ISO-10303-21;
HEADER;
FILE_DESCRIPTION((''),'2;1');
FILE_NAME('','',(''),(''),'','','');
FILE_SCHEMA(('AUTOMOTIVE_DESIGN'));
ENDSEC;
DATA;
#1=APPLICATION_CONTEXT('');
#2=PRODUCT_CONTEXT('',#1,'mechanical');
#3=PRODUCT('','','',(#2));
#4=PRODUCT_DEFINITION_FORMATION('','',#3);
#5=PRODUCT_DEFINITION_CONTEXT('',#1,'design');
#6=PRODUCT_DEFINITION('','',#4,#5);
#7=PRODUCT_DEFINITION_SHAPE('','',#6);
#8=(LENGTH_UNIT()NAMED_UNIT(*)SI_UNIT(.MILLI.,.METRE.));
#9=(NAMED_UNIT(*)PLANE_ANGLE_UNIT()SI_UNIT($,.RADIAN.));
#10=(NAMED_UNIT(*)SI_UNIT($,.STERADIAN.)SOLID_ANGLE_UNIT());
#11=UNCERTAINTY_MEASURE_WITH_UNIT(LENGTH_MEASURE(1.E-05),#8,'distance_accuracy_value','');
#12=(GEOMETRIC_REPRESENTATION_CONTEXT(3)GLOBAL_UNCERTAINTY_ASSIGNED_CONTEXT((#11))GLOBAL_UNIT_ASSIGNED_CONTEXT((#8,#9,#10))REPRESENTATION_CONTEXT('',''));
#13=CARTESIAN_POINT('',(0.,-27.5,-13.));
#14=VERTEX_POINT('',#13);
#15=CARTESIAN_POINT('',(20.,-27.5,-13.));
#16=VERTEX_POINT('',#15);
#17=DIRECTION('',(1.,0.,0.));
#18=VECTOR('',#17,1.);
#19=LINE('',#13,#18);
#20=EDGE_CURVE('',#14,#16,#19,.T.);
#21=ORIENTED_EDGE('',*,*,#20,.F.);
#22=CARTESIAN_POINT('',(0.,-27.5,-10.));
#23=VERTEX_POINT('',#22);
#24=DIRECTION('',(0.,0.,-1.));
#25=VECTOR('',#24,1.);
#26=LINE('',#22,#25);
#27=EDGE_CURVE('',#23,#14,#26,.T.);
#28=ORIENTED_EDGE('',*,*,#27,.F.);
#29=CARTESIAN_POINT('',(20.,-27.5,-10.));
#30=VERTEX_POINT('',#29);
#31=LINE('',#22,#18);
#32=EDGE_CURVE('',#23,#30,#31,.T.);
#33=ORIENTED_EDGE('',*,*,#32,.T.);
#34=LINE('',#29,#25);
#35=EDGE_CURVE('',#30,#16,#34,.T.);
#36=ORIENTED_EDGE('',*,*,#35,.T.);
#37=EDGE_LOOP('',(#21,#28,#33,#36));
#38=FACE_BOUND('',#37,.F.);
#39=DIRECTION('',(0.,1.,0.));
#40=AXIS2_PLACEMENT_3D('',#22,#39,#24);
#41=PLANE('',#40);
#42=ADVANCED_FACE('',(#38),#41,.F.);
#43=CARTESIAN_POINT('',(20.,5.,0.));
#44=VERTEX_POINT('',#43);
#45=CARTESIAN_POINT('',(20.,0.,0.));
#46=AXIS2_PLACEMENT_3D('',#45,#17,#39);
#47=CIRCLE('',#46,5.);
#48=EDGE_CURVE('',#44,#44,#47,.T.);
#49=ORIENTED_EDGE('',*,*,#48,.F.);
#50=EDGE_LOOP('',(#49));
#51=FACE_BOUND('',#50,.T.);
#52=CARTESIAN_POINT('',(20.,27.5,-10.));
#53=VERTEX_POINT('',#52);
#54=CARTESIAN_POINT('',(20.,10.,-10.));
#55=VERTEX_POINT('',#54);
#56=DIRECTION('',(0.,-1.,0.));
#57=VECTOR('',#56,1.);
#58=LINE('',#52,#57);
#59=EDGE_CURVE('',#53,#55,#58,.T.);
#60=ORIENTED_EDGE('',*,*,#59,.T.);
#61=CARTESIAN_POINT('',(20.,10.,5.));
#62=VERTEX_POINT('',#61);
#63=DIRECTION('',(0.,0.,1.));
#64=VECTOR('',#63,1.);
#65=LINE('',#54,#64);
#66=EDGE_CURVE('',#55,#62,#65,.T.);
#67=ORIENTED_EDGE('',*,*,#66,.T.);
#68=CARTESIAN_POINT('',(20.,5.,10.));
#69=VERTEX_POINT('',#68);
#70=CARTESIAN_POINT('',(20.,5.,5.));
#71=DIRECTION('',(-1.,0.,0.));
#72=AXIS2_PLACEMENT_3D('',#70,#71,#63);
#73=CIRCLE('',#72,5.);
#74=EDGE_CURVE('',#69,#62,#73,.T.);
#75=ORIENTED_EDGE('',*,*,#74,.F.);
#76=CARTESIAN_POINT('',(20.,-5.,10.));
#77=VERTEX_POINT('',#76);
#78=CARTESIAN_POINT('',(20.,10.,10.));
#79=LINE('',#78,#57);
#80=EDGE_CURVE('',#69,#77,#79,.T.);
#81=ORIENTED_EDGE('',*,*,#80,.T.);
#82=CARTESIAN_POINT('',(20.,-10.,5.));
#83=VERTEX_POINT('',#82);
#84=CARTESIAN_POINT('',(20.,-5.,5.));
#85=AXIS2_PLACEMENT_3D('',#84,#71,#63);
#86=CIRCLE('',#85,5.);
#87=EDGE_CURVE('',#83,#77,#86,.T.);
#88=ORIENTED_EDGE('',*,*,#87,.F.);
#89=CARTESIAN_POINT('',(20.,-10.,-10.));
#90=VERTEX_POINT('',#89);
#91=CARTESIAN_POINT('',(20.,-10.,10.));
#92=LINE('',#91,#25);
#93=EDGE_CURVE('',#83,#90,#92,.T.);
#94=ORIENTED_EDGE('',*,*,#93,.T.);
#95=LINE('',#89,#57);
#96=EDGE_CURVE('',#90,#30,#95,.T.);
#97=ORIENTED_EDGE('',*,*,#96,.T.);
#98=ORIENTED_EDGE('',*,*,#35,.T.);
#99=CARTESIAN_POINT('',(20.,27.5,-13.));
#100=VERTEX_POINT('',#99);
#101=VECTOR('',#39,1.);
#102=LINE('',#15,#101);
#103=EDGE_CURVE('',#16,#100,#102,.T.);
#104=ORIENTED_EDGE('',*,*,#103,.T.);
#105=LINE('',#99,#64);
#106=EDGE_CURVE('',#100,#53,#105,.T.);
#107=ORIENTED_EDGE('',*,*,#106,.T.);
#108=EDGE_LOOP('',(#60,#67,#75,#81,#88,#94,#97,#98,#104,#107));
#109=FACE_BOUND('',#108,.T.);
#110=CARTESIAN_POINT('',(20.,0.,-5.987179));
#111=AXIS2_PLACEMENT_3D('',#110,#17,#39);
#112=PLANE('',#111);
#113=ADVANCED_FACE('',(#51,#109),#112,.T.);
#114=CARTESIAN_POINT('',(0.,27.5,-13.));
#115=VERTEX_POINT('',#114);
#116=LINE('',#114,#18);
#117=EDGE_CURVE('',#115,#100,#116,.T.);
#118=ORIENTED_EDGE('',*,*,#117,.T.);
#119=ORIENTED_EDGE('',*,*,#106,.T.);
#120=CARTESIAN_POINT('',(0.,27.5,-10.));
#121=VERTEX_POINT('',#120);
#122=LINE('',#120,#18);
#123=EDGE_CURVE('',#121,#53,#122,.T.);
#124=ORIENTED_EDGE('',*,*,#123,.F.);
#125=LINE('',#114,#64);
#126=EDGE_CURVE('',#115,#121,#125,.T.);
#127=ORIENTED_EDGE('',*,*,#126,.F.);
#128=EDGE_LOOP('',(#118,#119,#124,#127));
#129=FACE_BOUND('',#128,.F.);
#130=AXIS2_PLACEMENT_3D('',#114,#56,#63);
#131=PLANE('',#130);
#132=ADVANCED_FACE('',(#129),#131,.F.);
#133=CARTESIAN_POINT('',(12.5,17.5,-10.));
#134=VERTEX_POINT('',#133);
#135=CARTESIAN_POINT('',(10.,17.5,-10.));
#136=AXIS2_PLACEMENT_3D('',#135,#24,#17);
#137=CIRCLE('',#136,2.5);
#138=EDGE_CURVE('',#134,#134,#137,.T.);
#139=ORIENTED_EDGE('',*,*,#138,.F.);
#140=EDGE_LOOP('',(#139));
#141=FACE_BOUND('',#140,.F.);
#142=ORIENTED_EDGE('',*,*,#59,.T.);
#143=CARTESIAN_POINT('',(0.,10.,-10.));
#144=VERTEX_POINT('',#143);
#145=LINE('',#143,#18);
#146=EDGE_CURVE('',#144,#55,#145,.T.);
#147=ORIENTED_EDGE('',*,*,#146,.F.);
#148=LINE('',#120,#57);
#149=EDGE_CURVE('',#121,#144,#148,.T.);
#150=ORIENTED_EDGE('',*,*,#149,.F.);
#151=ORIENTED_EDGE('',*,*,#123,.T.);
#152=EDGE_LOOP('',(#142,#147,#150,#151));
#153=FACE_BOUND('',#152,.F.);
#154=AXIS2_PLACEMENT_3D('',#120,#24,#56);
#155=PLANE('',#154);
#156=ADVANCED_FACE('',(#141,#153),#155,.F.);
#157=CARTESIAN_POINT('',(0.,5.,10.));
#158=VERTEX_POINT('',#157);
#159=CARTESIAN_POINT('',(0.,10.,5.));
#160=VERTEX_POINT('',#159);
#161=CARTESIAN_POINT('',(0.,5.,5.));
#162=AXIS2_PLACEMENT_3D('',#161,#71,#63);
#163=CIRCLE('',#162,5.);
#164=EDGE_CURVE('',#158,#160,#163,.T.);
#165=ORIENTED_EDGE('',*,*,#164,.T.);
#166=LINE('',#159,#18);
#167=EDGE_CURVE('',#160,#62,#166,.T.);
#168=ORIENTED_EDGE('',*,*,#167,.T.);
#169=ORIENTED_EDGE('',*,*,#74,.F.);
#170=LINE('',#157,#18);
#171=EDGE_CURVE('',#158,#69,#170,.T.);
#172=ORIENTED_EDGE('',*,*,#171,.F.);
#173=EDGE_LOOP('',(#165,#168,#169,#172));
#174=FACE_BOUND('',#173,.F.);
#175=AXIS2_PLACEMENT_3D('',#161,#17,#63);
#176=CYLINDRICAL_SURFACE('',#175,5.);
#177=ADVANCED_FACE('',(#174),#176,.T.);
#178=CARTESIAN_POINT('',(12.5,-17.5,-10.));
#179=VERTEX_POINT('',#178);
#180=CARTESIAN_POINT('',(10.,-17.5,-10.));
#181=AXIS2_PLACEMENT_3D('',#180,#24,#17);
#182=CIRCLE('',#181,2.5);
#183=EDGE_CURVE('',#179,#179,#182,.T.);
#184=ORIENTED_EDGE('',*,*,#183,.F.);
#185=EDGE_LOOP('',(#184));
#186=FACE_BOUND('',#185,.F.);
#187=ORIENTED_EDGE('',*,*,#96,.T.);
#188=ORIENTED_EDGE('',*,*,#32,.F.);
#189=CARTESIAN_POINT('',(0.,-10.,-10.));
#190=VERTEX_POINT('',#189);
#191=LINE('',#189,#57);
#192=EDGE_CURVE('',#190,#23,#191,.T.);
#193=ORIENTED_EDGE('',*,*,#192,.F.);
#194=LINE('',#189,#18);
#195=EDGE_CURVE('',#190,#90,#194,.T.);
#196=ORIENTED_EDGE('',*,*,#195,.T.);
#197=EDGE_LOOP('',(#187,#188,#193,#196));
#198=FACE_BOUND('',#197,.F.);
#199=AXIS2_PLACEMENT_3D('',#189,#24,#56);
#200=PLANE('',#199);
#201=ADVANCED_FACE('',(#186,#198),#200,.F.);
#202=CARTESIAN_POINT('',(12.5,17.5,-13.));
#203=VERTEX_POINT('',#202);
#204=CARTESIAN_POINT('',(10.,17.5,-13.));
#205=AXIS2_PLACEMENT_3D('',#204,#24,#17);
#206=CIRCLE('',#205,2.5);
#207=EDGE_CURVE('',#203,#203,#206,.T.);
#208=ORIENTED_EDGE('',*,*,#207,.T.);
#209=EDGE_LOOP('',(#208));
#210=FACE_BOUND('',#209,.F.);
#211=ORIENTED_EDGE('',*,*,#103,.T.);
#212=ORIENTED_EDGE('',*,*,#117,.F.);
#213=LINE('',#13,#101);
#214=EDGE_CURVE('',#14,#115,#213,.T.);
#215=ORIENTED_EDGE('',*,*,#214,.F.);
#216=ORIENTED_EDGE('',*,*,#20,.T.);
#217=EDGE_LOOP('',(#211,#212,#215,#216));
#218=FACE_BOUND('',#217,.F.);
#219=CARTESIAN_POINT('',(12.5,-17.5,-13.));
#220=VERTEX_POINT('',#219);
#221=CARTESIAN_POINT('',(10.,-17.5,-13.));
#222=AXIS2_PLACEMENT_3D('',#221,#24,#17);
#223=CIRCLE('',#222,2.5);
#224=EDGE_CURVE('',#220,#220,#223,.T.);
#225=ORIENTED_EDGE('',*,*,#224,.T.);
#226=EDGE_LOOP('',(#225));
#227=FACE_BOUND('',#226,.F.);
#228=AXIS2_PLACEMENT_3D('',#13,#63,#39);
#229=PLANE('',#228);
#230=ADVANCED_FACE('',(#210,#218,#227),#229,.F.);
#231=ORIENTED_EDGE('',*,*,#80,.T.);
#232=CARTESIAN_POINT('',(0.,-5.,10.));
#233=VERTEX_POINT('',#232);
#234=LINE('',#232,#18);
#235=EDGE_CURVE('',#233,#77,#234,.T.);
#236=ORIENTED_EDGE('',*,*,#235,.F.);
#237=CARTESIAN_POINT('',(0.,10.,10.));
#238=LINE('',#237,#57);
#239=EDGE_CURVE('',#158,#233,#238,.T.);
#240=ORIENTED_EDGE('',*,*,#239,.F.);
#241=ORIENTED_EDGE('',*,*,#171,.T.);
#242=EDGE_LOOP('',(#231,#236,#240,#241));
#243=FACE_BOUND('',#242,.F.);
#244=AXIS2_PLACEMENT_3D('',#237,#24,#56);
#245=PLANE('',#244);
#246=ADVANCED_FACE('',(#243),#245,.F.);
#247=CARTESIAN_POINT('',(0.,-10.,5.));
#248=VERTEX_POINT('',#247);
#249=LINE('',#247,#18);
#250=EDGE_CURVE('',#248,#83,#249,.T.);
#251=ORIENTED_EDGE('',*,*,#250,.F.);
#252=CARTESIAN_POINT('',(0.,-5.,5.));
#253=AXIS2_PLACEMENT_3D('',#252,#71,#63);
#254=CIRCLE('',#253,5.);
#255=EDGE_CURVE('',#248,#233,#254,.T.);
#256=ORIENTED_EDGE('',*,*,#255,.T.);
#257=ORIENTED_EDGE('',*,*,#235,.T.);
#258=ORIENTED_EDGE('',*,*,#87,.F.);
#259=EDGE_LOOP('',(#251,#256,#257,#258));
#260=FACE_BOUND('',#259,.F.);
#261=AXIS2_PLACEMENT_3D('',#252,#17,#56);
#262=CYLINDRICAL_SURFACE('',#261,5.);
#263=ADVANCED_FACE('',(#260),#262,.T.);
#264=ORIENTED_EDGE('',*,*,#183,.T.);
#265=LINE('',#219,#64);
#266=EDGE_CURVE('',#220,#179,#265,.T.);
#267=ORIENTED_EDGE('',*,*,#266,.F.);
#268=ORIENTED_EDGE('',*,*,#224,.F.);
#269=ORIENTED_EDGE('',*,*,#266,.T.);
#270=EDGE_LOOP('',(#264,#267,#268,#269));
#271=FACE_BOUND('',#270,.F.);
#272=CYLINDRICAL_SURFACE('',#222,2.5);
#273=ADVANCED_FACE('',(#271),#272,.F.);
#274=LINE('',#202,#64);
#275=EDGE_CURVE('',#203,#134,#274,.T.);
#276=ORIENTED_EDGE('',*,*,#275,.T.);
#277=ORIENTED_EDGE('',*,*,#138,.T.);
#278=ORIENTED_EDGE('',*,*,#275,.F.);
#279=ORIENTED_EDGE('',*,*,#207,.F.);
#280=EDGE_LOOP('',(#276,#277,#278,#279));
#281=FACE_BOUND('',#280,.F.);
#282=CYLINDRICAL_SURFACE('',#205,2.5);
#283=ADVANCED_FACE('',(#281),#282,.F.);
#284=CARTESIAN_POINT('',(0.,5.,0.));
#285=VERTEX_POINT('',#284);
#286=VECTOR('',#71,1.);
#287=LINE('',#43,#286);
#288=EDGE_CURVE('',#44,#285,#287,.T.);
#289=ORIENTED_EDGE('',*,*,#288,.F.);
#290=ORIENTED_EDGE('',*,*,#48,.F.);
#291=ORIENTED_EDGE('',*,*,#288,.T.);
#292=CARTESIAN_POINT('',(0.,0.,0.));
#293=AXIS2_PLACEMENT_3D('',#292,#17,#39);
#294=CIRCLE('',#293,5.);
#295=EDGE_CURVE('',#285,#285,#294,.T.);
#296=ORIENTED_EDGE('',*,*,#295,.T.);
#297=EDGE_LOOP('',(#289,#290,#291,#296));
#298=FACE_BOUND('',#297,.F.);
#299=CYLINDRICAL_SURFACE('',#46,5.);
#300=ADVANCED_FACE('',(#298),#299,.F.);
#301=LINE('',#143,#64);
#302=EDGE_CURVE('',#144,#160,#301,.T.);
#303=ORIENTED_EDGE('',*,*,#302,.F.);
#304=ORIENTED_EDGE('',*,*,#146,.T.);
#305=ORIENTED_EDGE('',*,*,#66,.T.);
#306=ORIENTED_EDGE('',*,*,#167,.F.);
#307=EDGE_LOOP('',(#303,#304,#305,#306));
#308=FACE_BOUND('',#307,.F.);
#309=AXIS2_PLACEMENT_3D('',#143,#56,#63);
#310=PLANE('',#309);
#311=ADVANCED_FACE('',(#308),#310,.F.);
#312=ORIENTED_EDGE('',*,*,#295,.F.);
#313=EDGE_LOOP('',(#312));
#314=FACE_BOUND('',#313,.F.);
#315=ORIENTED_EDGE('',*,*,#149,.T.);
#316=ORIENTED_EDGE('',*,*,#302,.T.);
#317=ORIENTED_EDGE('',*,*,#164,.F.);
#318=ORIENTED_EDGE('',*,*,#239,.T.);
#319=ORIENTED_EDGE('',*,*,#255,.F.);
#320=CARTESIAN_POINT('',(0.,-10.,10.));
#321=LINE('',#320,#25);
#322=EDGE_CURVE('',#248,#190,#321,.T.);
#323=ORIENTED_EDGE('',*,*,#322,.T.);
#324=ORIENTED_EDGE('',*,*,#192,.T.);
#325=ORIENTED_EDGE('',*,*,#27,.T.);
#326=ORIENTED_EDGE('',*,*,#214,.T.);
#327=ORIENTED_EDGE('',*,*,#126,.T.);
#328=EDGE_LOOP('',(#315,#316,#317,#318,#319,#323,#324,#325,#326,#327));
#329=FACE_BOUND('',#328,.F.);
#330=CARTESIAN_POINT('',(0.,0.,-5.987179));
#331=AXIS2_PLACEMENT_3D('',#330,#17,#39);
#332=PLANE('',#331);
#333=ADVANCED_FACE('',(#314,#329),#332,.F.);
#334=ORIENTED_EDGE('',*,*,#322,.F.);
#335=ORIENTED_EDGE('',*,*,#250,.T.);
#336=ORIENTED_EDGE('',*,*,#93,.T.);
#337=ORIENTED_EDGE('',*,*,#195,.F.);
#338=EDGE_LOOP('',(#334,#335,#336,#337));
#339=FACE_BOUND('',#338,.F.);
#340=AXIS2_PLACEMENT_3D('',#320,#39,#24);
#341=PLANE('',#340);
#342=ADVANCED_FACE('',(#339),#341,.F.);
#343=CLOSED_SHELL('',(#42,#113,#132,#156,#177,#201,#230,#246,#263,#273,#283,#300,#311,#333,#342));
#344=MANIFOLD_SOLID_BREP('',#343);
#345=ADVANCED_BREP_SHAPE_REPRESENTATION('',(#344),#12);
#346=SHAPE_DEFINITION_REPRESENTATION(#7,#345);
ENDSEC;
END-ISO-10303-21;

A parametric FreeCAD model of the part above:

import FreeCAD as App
import Part
import Sketcher
Q = App.Units.Quantity


def edges_at(feature, points):
    """Names of the edges that pass closest to the given points."""
    edges = feature.Shape.Edges
    near = lambda p: min(range(len(edges)), key=lambda i: edges[i].distToShape(Part.Vertex(*p))[0])
    return sorted({f"Edge{near(p) + 1}" for p in points})


def add_polygon(sketch, points):
    """Adds a closed chain of lines whose ends are joined by coincident constraints."""
    first, n = sketch.GeometryCount, len(points)
    for a, b in zip(points, points[1:] + points[:1]):
        sketch.addGeometry(Part.LineSegment(App.Vector(*a, 0), App.Vector(*b, 0)), False)
    for i in range(n):
        sketch.addConstraint(Sketcher.Constraint("Coincident", first + i, 2, first + (i + 1) % n, 1))

doc = App.newDocument("Part")
body = doc.addObject("PartDesign::Body", "Body")

# Sketch on YZ plane
sketch1 = body.newObject("Sketcher::SketchObject", "Sketch")
sketch1.AttachmentSupport = (doc.getObject("YZ_Plane"), [""])
sketch1.MapMode = "FlatFace"
add_polygon(sketch1, [(-27.5, -10), (-27.5, -13), (27.5, -13), (27.5, -10), (10, -10), (10, 10), (-10, 10), (-10, -10)])  # lines 0-7
sketch1.addConstraint([
    Sketcher.Constraint("Vertical", 0),
    Sketcher.Constraint("Horizontal", 1),
    Sketcher.Constraint("Vertical", 2),
    Sketcher.Constraint("Horizontal", 3),
    Sketcher.Constraint("Vertical", 4),
    Sketcher.Constraint("Horizontal", 5),
    Sketcher.Constraint("Vertical", 6),
    Sketcher.Constraint("Horizontal", 7),
    Sketcher.Constraint("Symmetric", 3, 2, 5, 2, -1, 1),
    Sketcher.Constraint("Symmetric", 2, 2, 7, 2, -2),
    Sketcher.Constraint("Equal", 5, 4),
    Sketcher.Constraint("DistanceX", 1, 1, 1, 2, Q("55 mm")),
    Sketcher.Constraint("DistanceX", 5, 2, 5, 1, Q("20 mm")),
    Sketcher.Constraint("DistanceY", 0, 2, 0, 1, Q("3 mm")),
])
pad1 = body.newObject("PartDesign::Pad", "Pad")
pad1.Profile = sketch1
pad1.Length = 20

# Sketch on YZ plane
sketch2 = body.newObject("Sketcher::SketchObject", "Sketch001")
sketch2.AttachmentSupport = (doc.getObject("YZ_Plane"), [""])
sketch2.MapMode = "FlatFace"
sketch2.AttachmentOffset = App.Placement(App.Vector(0, 0, 20), App.Rotation())
sketch2.addGeometry(Part.Circle(App.Vector(0, 0, 0), App.Vector(0, 0, 1), 5), False)
sketch2.addConstraint([
    Sketcher.Constraint("Coincident", 0, 3, -1, 1),
    Sketcher.Constraint("Diameter", 0, Q("10 mm")),
])
pocket1 = body.newObject("PartDesign::Pocket", "Pocket")
pocket1.Profile = sketch2
pocket1.Type = "ThroughAll"
doc.recompute()

fillet = body.newObject("PartDesign::Fillet", "Fillet")
fillet.Base = (pocket1, edges_at(pocket1, [(10, -10, 10)]))
fillet.Radius = 5
doc.recompute()

fillet2 = body.newObject("PartDesign::Fillet", "Fillet001")
fillet2.Base = (fillet, edges_at(fillet, [(10, 10, 10)]))
fillet2.Radius = 5

# Sketch on XY plane
sketch3 = body.newObject("Sketcher::SketchObject", "Sketch002")
sketch3.AttachmentSupport = (doc.getObject("XY_Plane"), [""])
sketch3.MapMode = "FlatFace"
sketch3.AttachmentOffset = App.Placement(App.Vector(0, 0, -13), App.Rotation())
sketch3.addGeometry([
    Part.Circle(App.Vector(10, -17.5, 0), App.Vector(0, 0, 1), 2.5),
    Part.Circle(App.Vector(10, 17.5, 0), App.Vector(0, 0, 1), 2.5),
], False)
sketch3.addConstraint([
    Sketcher.Constraint("Equal", 0, 1),
    Sketcher.Constraint("Symmetric", 0, 3, 1, 3, -1),
    Sketcher.Constraint("Diameter", 0, Q("5 mm")),
    Sketcher.Constraint("DistanceX", -1, 1, 0, 3, Q("10 mm")),
    Sketcher.Constraint("DistanceY", 0, 3, 1, 3, Q("35 mm")),
])
pocket2 = body.newObject("PartDesign::Pocket", "Pocket001")
pocket2.Profile = sketch3
pocket2.Type = "ThroughAll"
pocket2.Reversed = True

doc.recompute()
